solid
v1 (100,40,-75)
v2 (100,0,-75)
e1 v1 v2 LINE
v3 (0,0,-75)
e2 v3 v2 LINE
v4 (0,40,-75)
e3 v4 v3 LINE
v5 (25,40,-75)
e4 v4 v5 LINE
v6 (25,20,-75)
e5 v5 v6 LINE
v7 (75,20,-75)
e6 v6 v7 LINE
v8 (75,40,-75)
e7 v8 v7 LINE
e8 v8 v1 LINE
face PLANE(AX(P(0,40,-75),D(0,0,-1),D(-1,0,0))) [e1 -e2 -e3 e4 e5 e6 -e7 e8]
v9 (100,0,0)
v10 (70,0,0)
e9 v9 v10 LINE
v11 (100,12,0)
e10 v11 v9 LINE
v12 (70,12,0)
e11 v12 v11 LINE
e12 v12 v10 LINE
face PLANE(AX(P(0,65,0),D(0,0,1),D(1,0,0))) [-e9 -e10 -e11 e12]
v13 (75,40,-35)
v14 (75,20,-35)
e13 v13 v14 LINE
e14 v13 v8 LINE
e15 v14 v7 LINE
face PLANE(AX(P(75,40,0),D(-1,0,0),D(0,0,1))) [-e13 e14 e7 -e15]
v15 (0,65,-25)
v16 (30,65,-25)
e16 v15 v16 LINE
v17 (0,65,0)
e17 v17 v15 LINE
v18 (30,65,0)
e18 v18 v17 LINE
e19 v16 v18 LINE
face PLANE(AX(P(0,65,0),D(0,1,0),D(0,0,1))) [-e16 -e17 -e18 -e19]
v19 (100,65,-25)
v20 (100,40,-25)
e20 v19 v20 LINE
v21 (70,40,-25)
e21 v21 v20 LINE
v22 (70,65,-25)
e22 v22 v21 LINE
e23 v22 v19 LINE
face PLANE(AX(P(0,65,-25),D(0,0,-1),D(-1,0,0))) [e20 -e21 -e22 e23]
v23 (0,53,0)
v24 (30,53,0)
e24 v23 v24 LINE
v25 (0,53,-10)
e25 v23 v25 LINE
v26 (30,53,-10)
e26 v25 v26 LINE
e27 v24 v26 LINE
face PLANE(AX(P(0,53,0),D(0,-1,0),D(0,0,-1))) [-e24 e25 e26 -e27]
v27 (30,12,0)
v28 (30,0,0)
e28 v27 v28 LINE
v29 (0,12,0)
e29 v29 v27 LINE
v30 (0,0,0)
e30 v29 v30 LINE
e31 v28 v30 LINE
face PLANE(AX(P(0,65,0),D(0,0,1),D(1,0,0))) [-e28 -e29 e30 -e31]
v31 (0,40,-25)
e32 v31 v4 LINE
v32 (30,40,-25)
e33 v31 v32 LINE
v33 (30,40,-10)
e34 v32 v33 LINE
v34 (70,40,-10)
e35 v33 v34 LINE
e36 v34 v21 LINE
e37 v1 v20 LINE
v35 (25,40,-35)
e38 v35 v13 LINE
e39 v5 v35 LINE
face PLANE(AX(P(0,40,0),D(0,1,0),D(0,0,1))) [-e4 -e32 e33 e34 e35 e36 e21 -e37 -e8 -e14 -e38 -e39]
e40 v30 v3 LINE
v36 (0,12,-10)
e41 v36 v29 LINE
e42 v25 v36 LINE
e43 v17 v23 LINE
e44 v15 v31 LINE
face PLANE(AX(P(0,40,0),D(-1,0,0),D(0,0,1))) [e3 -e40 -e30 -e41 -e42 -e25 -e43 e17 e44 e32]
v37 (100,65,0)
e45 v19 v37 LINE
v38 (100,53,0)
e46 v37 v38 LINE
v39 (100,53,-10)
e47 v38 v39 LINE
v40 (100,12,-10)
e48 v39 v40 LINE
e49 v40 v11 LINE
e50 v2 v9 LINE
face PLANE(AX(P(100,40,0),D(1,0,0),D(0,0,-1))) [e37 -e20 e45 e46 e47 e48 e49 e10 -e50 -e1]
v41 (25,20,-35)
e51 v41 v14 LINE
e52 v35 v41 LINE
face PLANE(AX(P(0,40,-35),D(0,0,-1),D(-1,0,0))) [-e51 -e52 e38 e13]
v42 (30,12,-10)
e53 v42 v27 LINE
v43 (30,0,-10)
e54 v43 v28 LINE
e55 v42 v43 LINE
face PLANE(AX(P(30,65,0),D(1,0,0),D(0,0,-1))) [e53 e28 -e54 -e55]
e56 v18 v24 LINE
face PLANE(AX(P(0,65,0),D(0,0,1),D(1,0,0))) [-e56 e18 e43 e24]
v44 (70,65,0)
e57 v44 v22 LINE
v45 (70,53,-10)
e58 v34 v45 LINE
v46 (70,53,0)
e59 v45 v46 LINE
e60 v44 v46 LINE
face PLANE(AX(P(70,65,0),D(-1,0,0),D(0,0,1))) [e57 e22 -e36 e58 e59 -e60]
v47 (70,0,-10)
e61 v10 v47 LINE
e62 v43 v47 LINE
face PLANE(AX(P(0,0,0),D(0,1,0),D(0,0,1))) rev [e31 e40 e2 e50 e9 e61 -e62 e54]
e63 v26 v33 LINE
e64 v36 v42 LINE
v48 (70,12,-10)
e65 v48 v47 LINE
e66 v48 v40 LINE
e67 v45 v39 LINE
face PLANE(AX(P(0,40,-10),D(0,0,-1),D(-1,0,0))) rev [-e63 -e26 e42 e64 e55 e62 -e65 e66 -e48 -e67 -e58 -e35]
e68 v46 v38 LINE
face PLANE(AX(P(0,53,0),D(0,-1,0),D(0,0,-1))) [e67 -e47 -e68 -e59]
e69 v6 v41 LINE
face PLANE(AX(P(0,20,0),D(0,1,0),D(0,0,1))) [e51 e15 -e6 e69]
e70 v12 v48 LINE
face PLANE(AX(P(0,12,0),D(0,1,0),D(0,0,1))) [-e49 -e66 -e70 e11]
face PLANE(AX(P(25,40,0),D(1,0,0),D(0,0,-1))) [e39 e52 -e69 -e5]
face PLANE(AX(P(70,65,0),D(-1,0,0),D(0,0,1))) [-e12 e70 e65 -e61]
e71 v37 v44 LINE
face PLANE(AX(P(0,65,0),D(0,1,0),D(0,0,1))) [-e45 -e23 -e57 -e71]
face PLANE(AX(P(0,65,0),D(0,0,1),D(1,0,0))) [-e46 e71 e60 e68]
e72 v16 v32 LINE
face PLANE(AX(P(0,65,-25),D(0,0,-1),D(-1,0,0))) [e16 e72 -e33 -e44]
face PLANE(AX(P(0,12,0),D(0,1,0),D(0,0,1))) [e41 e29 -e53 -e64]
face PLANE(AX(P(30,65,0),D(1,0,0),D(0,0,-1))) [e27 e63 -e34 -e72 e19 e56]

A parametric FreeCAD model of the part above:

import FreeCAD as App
import Part
import Sketcher

V = App.Vector


def add_polygon(sketch, points):
    """Adds a closed chain of lines whose ends are joined by coincident constraints."""
    first, n = sketch.GeometryCount, len(points)
    for a, b in zip(points, points[1:] + points[:1]):
        sketch.addGeometry(Part.LineSegment(App.Vector(*a, 0), App.Vector(*b, 0)), False)
    for i in range(n):
        sketch.addConstraint(Sketcher.Constraint("Coincident", first + i, 2, first + (i + 1) % n, 1))

doc = App.newDocument("Part")
body = doc.addObject("PartDesign::Body", "Body")

# Sketch on XZ plane
sketch1 = doc.addObject("Sketcher::SketchObject", "Sketch")
body.addObject(sketch1)
sketch1.AttachmentSupport = (doc.XZ_Plane, [""])
sketch1.MapMode = "FlatFace"
add_polygon(sketch1, [(0, -75), (0, -25), (30, -25), (30, -10), (70, -10), (70, -25), (100, -25), (100, -75), (75, -75), (75, -35), (25, -35), (25, -75)])  # lines 0-11
sketch1.addConstraint([
    Sketcher.Constraint("Vertical", 0),
    Sketcher.Constraint("Horizontal", 1),
    Sketcher.Constraint("Vertical", 2),
    Sketcher.Constraint("Horizontal", 3),
    Sketcher.Constraint("Vertical", 4),
    Sketcher.Constraint("Horizontal", 5),
    Sketcher.Constraint("Vertical", 6),
    Sketcher.Constraint("Horizontal", 7),
    Sketcher.Constraint("Vertical", 8),
    Sketcher.Constraint("Horizontal", 9),
    Sketcher.Constraint("Vertical", 10),
    Sketcher.Constraint("Horizontal", 11),
    Sketcher.Constraint("PointOnObject", 0, 2, -2),
    Sketcher.Constraint("Horizontal", 1, 2, 4, 2),
    Sketcher.Constraint("Horizontal", 7, 2, 10, 2),
    Sketcher.Constraint("Equal", 1, 5),
    Sketcher.Constraint("Equal", 7, 11),
    Sketcher.Constraint("Equal", 9, 0),
    Sketcher.Constraint("Equal", 3, 8),
    Sketcher.Constraint("DistanceX", 1, 1, 1, 2, 30.0),
    Sketcher.Constraint("DistanceX", 3, 1, 3, 2, 40.0),
    Sketcher.Constraint("DistanceX", 7, 2, 7, 1, 25.0),
    Sketcher.Constraint("DistanceY", 2, 1, 2, 2, 15.0),
    Sketcher.Constraint("DistanceY", 0, 2, -1, 1, 25.0),
])
pad1 = doc.addObject("PartDesign::Pad", "Pad")
body.addObject(pad1)
pad1.Profile = sketch1
pad1.Length = 40
pad1.Reversed = True

# Sketch on XZ plane
sketch2 = doc.addObject("Sketcher::SketchObject", "Sketch001")
body.addObject(sketch2)
sketch2.AttachmentSupport = (doc.XZ_Plane, [""])
sketch2.MapMode = "FlatFace"
add_polygon(sketch2, [(25, -75), (25, -35), (75, -35), (75, -75)])  # lines 0-3
sketch2.addConstraint([
    Sketcher.Constraint("Vertical", 0),
    Sketcher.Constraint("Horizontal", 1),
    Sketcher.Constraint("Vertical", 2),
    Sketcher.Constraint("Horizontal", 3),
    Sketcher.Constraint("DistanceX", 1, 1, 1, 2, 50.0),
    Sketcher.Constraint("DistanceY", 0, 1, 0, 2, 40.0),
    Sketcher.Constraint("DistanceX", -1, 1, 0, 2, 25.0),
    Sketcher.Constraint("DistanceY", 0, 2, -1, 1, 35.0),
])
pad2 = doc.addObject("PartDesign::Pad", "Pad001")
body.addObject(pad2)
pad2.Profile = sketch2
pad2.Length = 20
pad2.Reversed = True

# Sketch on XZ plane
sketch3 = doc.addObject("Sketcher::SketchObject", "Sketch002")
body.addObject(sketch3)
sketch3.AttachmentSupport = (doc.XZ_Plane, [""])
sketch3.MapMode = "FlatFace"
add_polygon(sketch3, [(70, -25), (70, 0), (100, 0), (100, -25)])  # lines 0-3
add_polygon(sketch3, [(0, -25), (0, 0), (30, 0), (30, -25)])  # lines 4-7
sketch3.addConstraint([
    Sketcher.Constraint("Vertical", 0),
    Sketcher.Constraint("Horizontal", 1),
    Sketcher.Constraint("Vertical", 2),
    Sketcher.Constraint("Horizontal", 3),
    Sketcher.Constraint("Vertical", 4),
    Sketcher.Constraint("Horizontal", 5),
    Sketcher.Constraint("Vertical", 6),
    Sketcher.Constraint("Horizontal", 7),
    Sketcher.Constraint("Coincident", 4, 2, -1, 1),
    Sketcher.Constraint("PointOnObject", 0, 2, -1),
    Sketcher.Constraint("Horizontal", 3, 2, 6, 2),
    Sketcher.Constraint("Equal", 3, 5),
    Sketcher.Constraint("DistanceX", 1, 1, 1, 2, 30.0),
    Sketcher.Constraint("DistanceY", 0, 1, 0, 2, 25.0),
    Sketcher.Constraint("DistanceX", -1, 1, 0, 2, 70.0),
])
pad3 = doc.addObject("PartDesign::Pad", "Pad002")
body.addObject(pad3)
pad3.Profile = sketch3
pad3.Length = 65
pad3.Reversed = True

# Sketch on YZ plane
sketch4 = doc.addObject("Sketcher::SketchObject", "Sketch003")
body.addObject(sketch4)
sketch4.AttachmentSupport = (doc.YZ_Plane, [""])
sketch4.MapMode = "FlatFace"
sketch4.AttachmentOffset = App.Placement(V(0, 0, 100), App.Rotation())
add_polygon(sketch4, [(53, 0), (12, 0), (12, -10), (53, -10)])  # lines 0-3
sketch4.addConstraint([
    Sketcher.Constraint("Horizontal", 0),
    Sketcher.Constraint("Vertical", 1),
    Sketcher.Constraint("Horizontal", 2),
    Sketcher.Constraint("Vertical", 3),
    Sketcher.Constraint("PointOnObject", 0, 2, -1),
    Sketcher.Constraint("DistanceX", 0, 2, 0, 1, 41.0),
    Sketcher.Constraint("DistanceY", 1, 2, 1, 1, 10.0),
    Sketcher.Constraint("DistanceX", -1, 1, 0, 2, 12.0),
])
pocket1 = doc.addObject("PartDesign::Pocket", "Pocket")
body.addObject(pocket1)
pocket1.Profile = sketch4
pocket1.Type = "ThroughAll"

doc.recompute()
